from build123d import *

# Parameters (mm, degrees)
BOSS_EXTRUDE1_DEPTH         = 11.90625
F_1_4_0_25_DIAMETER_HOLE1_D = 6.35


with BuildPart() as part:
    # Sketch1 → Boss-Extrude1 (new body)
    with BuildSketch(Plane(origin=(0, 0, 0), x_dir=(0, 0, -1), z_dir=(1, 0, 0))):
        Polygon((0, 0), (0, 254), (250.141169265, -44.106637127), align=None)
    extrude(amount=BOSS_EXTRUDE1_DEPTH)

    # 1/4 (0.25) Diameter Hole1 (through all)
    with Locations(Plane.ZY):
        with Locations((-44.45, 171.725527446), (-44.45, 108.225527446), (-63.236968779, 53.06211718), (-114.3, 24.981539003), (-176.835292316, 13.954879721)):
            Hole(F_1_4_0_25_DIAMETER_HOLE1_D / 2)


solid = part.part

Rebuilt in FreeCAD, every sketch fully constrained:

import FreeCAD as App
import Part
import Sketcher
Q = App.Units.Quantity

doc = App.newDocument("Part")
body = doc.addObject("PartDesign::Body", "Body")

# Sketch on YZ plane
sketch1 = body.newObject("Sketcher::SketchObject", "Sketch")
sketch1.AttachmentSupport = (doc.getObject("YZ_Plane"), [""])
sketch1.MapMode = "FlatFace"
sketch1.addGeometry(Part.LineSegment(App.Vector(254, 0, 0), App.Vector(0, 0, 0)), False)
sketch1.addGeometry(Part.LineSegment(App.Vector(0, 0, 0), App.Vector(-44.106637, -250.141169, 0)), False)
sketch1.addGeometry(Part.LineSegment(App.Vector(-44.106637, -250.141169, 0), App.Vector(254, 0, 0)), False)
sketch1.addConstraint(Sketcher.Constraint("Coincident", 0, 2, 1, 1))
sketch1.addConstraint(Sketcher.Constraint("Coincident", 1, 2, 2, 1))
sketch1.addConstraint(Sketcher.Constraint("Coincident", 2, 2, 0, 1))
sketch1.addConstraint(Sketcher.Constraint("Horizontal", 0))
sketch1.addConstraint(Sketcher.Constraint("Coincident", 0, 2, -1, 1))
sketch1.addConstraint(Sketcher.Constraint("DistanceX", 0, 2, 0, 1, Q("10 in")))
sketch1.addConstraint(Sketcher.Constraint("Distance", 1, Q("10 in")))
sketch1.addConstraint(Sketcher.Constraint("Angle", 1, Q("-100 deg")))
pad1 = body.newObject("PartDesign::Pad", "Pad")
pad1.Profile = sketch1
pad1.Length = Q("0.46875 in")

# Sketch on YZ plane
sketch2 = body.newObject("Sketcher::SketchObject", "Sketch001")
sketch2.AttachmentSupport = (doc.getObject("YZ_Plane"), [""])
sketch2.MapMode = "FlatFace"
sketch2.addGeometry(Part.Circle(App.Vector(171.725527, -44.45, 0), App.Vector(0, 0, 1), 3.175), False)
sketch2.addGeometry(Part.Circle(App.Vector(108.225527, -44.45, 0), App.Vector(0, 0, 1), 3.175), False)
sketch2.addGeometry(Part.Circle(App.Vector(53.062117, -63.236969, 0), App.Vector(0, 0, 1), 3.175), False)
sketch2.addGeometry(Part.Circle(App.Vector(24.981539, -114.3, 0), App.Vector(0, 0, 1), 3.175), False)
sketch2.addGeometry(Part.Circle(App.Vector(13.95488, -176.835292, 0), App.Vector(0, 0, 1), 3.175), False)
sketch2.addConstraint(Sketcher.Constraint("Equal", 0, 1))
sketch2.addConstraint(Sketcher.Constraint("Equal", 1, 2))
sketch2.addConstraint(Sketcher.Constraint("Equal", 2, 3))
sketch2.addConstraint(Sketcher.Constraint("Equal", 3, 4))
sketch2.addConstraint(Sketcher.Constraint("Horizontal", 0, 3, 1, 3))
sketch2.addConstraint(Sketcher.Constraint("Diameter", 0, Q("0.25 in")))
sketch2.addConstraint(Sketcher.Constraint("DistanceY", 3, 3, -1, 1, Q("4.5 in")))
sketch2.addConstraint(Sketcher.Constraint("DistanceX", 1, 3, 0, 3, Q("2.5 in")))
sketch2.addConstraint(Sketcher.Constraint("DistanceY", 0, 3, -1, 1, Q("1.75 in")))
sketch2.addConstraint(Sketcher.Constraint("DistanceY", 2, 3, -1, 1, 63.236969))
sketch2.addConstraint(Sketcher.Constraint("DistanceX", -1, 1, 3, 3, 24.981539))
sketch2.addConstraint(Sketcher.Constraint("DistanceX", -1, 1, 4, 3, 13.95488))
sketch2.addConstraint(Sketcher.Constraint("DistanceX", 2, 3, 1, 3, 55.16341))
sketch2.addConstraint(Sketcher.Constraint("DistanceX", 3, 3, 2, 3, 28.080578))
sketch2.addConstraint(Sketcher.Constraint("DistanceY", 4, 3, -1, 1, 176.835292))
doc.recompute()
hole = body.newObject("PartDesign::Hole", "Hole")
hole.Profile = sketch2
hole.ThreadType = "None"
hole.Diameter = Q("0.25 in")
hole.DepthType = "ThroughAll"
hole.Reversed = True

doc.recompute()
